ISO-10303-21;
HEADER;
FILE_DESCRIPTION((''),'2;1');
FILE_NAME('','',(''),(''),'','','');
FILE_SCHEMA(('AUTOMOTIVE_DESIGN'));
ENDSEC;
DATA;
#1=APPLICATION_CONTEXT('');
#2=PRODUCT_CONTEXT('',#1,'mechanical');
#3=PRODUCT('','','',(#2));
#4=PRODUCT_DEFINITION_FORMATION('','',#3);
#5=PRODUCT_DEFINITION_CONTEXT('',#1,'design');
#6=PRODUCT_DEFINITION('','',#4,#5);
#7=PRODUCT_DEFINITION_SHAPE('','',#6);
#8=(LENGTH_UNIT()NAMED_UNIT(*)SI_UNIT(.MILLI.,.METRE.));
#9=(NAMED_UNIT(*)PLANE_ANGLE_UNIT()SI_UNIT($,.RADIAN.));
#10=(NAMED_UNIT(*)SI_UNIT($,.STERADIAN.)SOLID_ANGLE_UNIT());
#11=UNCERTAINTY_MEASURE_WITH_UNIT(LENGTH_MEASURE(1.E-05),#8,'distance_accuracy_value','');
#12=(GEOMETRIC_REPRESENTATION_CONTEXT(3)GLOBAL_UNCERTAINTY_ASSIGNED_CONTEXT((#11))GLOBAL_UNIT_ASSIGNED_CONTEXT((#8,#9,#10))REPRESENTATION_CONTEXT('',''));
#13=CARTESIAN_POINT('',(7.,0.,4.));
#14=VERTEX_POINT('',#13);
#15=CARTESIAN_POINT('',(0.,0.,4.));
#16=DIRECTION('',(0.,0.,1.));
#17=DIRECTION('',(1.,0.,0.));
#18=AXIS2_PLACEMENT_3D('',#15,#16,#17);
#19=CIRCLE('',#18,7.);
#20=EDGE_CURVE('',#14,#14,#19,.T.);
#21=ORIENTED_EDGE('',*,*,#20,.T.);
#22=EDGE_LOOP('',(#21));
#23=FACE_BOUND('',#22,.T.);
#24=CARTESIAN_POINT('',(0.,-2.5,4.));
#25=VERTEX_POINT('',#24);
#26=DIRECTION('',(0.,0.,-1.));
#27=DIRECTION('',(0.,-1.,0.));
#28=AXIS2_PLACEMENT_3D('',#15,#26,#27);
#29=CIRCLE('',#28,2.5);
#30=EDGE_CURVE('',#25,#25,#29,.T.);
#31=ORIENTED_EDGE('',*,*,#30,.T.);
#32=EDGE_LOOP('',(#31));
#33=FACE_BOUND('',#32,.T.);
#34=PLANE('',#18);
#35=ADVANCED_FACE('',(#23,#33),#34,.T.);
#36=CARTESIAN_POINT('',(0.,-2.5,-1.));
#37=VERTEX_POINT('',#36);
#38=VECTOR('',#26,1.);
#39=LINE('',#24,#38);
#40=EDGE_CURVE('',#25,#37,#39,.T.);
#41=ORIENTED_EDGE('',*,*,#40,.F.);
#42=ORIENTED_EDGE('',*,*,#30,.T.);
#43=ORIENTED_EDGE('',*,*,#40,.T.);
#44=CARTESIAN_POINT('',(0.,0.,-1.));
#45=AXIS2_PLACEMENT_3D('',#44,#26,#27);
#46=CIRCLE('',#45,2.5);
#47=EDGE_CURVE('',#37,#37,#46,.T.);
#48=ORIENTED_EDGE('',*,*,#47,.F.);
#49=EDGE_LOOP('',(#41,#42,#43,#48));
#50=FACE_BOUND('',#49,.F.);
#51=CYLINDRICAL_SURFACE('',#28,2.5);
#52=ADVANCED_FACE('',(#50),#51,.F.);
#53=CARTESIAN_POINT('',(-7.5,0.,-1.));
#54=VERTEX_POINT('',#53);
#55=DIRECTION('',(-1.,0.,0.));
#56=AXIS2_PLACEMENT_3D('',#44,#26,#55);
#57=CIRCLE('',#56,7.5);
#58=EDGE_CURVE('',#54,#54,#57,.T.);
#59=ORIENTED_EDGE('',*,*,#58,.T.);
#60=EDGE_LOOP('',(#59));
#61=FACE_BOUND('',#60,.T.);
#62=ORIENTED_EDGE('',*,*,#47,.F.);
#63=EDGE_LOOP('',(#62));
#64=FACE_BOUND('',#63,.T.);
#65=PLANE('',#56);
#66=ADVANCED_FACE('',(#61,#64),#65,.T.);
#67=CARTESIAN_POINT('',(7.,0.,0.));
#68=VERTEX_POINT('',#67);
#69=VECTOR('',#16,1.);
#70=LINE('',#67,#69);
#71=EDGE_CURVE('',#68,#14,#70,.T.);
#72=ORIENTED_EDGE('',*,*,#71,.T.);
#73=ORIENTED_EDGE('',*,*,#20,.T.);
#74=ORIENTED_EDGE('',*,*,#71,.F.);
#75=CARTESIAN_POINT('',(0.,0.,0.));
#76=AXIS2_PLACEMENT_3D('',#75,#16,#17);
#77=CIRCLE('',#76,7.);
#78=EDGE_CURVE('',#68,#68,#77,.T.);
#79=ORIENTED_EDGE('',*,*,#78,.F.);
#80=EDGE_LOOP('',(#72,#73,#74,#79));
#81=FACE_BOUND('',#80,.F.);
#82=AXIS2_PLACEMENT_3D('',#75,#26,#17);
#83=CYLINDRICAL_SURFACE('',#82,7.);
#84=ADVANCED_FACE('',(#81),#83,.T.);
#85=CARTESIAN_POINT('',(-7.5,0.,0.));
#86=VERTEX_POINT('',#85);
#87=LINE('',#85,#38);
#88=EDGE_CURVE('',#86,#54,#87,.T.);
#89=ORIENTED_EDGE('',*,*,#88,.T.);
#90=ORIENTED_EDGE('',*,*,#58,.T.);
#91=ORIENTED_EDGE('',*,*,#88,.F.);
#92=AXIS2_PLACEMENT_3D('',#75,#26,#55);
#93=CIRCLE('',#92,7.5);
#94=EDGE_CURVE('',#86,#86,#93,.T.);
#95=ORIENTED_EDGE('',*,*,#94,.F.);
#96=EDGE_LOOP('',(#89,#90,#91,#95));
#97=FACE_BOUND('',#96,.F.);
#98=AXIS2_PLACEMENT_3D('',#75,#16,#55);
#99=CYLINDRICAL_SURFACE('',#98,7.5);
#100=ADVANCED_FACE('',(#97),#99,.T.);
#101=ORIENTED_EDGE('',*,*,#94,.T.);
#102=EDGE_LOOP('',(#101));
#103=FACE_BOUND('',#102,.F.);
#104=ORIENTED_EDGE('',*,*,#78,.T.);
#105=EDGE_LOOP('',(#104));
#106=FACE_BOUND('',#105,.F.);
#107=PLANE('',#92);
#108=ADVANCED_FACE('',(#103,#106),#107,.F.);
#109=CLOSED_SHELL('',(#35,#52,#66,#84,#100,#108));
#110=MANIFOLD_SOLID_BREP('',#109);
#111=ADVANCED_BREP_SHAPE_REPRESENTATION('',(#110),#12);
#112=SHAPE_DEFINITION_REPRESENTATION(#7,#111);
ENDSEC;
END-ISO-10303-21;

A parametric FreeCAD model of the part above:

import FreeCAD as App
import Part
import Sketcher

doc = App.newDocument("Part")
body = doc.addObject("PartDesign::Body", "Body")

# Sketch on XY plane
sketch1 = body.newObject("Sketcher::SketchObject", "Sketch")
sketch1.AttachmentSupport = (doc.getObject("XY_Plane"), [""])
sketch1.MapMode = "FlatFace"
sketch1.addGeometry(Part.Circle(App.Vector(0, 0, 0), App.Vector(0, 0, 1), 7), False)
sketch1.addConstraint(Sketcher.Constraint("Coincident", 0, 3, -1, 1))
sketch1.addConstraint(Sketcher.Constraint("Diameter", 0, 14.0))
pad1 = body.newObject("PartDesign::Pad", "Pad")
pad1.Profile = sketch1
pad1.Length = 4

# Sketch on XY plane
sketch2 = body.newObject("Sketcher::SketchObject", "Sketch001")
sketch2.AttachmentSupport = (doc.getObject("XY_Plane"), [""])
sketch2.MapMode = "FlatFace"
sketch2.addGeometry(Part.Circle(App.Vector(0, 0, 0), App.Vector(0, 0, 1), 8), False)
sketch2.addConstraint(Sketcher.Constraint("Coincident", 0, 3, -1, 1))
sketch2.addConstraint(Sketcher.Constraint("Diameter", 0, 15.0))
pad2 = body.newObject("PartDesign::Pad", "Pad001")
pad2.Profile = sketch2
pad2.Length = 1
pad2.Reversed = True

# Sketch on XY plane
sketch3 = body.newObject("Sketcher::SketchObject", "Sketch002")
sketch3.AttachmentSupport = (doc.getObject("XY_Plane"), [""])
sketch3.MapMode = "FlatFace"
sketch3.AttachmentOffset = App.Placement(App.Vector(0, 0, 4), App.Rotation())
sketch3.addGeometry(Part.Circle(App.Vector(0, 0, 0), App.Vector(0, 0, 1), 2.5), False)
sketch3.addConstraint(Sketcher.Constraint("Coincident", 0, 3, -1, 1))
sketch3.addConstraint(Sketcher.Constraint("Diameter", 0, 5.0))
doc.recompute()
hole = body.newObject("PartDesign::Hole", "Hole")
hole.Profile = sketch3
hole.ThreadType = "None"
hole.Diameter = 5
hole.DepthType = "Dimension"
hole.Depth = 5
hole.DrillPoint = "Angled"
hole.DrillPointAngle = 118

doc.recompute()
